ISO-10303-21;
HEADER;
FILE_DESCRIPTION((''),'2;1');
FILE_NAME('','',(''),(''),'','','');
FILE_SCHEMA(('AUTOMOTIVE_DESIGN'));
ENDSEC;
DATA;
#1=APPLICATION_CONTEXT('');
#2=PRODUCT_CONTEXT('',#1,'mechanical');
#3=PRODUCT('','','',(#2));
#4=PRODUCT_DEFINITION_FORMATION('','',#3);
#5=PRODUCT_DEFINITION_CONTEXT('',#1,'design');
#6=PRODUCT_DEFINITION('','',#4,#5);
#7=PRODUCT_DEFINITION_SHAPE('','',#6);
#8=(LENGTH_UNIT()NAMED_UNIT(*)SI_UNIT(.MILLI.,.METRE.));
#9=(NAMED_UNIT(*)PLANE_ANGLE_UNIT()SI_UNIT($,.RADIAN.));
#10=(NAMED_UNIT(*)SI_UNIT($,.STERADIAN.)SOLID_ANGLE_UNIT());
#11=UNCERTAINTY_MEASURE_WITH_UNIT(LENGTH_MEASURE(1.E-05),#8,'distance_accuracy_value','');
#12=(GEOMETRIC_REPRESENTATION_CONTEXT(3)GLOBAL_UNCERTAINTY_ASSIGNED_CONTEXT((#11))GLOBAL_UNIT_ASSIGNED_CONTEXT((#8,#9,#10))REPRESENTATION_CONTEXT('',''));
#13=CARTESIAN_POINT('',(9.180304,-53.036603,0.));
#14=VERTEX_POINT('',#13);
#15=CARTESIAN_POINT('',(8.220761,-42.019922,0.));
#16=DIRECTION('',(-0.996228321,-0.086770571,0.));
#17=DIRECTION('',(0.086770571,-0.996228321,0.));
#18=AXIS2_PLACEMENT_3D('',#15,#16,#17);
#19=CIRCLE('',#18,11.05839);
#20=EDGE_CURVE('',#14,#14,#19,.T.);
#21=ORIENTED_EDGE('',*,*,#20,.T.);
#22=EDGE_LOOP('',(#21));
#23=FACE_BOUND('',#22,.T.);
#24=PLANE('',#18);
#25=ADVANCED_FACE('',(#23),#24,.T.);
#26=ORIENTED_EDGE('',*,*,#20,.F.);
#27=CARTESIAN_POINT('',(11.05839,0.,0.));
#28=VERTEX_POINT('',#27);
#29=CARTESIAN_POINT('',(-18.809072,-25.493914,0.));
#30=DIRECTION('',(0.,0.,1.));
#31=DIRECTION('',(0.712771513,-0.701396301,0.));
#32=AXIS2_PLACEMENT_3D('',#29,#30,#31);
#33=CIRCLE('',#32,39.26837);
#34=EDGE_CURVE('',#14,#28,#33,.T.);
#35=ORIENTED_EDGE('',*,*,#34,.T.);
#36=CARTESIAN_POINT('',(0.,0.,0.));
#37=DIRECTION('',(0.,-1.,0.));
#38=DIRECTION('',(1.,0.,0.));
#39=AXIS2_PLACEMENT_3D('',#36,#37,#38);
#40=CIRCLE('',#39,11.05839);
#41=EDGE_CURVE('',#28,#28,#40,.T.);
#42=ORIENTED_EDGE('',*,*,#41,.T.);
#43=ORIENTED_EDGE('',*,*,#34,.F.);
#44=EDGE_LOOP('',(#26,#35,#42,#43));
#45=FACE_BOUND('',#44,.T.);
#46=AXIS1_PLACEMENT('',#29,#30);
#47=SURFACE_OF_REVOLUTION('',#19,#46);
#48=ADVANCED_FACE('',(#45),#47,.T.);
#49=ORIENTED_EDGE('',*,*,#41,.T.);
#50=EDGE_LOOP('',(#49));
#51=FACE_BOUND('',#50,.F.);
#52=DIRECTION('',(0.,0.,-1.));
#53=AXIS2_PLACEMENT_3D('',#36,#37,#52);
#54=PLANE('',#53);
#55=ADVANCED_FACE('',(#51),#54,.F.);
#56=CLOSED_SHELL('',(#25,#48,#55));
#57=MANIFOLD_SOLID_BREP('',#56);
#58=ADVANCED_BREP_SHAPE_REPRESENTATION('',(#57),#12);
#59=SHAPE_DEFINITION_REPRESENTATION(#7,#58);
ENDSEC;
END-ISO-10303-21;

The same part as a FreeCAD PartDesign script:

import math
import FreeCAD as App
import Part
import Sketcher

V = App.Vector

doc = App.newDocument("Part")
body = doc.addObject("PartDesign::Body", "Body")

sketch1 = body.newObject("Sketcher::SketchObject", "Sketch")
sketch1.AttachmentSupport = (doc.getObject("XZ_Plane"), [""])
sketch1.MapMode = "FlatFace"
sketch1.addGeometry(Part.Circle(V(0, 0, 0), V(0, 0, 1), 11.05839), False)
sketch1.addConstraint([
    Sketcher.Constraint("Coincident", 0, 3, -1, 1),
    Sketcher.Constraint("Diameter", 0, 22.11678),
])

sketch2 = body.newObject("Sketcher::SketchObject", "Sketch001")
sketch2.AttachmentSupport = (doc.getObject("XY_Plane"), [""])
sketch2.MapMode = "FlatFace"
sketch2.addGeometry(Part.ArcOfCircle(Part.Circle(V(-18.809072, -25.493914, 0), V(0, 0, 1), 31.681553), math.radians(-31.441567), math.radians(53.580585)), False)
sketch2.addConstraint([
    Sketcher.Constraint("Coincident", 0, 2, -1, 1),
    Sketcher.Constraint("Radius", 0, 31.681553),
    Sketcher.Constraint("DistanceX", 0, 3, -1, 1, 18.809072),
    Sketcher.Constraint("DistanceX", -1, 1, 0, 1, 8.220761),
])
doc.recompute()

additivepipe = body.newObject("PartDesign::AdditivePipe", "AdditivePipe")
additivepipe.Profile = sketch1
additivepipe.Spine = (sketch2, ["Edge1"])

doc.recompute()
